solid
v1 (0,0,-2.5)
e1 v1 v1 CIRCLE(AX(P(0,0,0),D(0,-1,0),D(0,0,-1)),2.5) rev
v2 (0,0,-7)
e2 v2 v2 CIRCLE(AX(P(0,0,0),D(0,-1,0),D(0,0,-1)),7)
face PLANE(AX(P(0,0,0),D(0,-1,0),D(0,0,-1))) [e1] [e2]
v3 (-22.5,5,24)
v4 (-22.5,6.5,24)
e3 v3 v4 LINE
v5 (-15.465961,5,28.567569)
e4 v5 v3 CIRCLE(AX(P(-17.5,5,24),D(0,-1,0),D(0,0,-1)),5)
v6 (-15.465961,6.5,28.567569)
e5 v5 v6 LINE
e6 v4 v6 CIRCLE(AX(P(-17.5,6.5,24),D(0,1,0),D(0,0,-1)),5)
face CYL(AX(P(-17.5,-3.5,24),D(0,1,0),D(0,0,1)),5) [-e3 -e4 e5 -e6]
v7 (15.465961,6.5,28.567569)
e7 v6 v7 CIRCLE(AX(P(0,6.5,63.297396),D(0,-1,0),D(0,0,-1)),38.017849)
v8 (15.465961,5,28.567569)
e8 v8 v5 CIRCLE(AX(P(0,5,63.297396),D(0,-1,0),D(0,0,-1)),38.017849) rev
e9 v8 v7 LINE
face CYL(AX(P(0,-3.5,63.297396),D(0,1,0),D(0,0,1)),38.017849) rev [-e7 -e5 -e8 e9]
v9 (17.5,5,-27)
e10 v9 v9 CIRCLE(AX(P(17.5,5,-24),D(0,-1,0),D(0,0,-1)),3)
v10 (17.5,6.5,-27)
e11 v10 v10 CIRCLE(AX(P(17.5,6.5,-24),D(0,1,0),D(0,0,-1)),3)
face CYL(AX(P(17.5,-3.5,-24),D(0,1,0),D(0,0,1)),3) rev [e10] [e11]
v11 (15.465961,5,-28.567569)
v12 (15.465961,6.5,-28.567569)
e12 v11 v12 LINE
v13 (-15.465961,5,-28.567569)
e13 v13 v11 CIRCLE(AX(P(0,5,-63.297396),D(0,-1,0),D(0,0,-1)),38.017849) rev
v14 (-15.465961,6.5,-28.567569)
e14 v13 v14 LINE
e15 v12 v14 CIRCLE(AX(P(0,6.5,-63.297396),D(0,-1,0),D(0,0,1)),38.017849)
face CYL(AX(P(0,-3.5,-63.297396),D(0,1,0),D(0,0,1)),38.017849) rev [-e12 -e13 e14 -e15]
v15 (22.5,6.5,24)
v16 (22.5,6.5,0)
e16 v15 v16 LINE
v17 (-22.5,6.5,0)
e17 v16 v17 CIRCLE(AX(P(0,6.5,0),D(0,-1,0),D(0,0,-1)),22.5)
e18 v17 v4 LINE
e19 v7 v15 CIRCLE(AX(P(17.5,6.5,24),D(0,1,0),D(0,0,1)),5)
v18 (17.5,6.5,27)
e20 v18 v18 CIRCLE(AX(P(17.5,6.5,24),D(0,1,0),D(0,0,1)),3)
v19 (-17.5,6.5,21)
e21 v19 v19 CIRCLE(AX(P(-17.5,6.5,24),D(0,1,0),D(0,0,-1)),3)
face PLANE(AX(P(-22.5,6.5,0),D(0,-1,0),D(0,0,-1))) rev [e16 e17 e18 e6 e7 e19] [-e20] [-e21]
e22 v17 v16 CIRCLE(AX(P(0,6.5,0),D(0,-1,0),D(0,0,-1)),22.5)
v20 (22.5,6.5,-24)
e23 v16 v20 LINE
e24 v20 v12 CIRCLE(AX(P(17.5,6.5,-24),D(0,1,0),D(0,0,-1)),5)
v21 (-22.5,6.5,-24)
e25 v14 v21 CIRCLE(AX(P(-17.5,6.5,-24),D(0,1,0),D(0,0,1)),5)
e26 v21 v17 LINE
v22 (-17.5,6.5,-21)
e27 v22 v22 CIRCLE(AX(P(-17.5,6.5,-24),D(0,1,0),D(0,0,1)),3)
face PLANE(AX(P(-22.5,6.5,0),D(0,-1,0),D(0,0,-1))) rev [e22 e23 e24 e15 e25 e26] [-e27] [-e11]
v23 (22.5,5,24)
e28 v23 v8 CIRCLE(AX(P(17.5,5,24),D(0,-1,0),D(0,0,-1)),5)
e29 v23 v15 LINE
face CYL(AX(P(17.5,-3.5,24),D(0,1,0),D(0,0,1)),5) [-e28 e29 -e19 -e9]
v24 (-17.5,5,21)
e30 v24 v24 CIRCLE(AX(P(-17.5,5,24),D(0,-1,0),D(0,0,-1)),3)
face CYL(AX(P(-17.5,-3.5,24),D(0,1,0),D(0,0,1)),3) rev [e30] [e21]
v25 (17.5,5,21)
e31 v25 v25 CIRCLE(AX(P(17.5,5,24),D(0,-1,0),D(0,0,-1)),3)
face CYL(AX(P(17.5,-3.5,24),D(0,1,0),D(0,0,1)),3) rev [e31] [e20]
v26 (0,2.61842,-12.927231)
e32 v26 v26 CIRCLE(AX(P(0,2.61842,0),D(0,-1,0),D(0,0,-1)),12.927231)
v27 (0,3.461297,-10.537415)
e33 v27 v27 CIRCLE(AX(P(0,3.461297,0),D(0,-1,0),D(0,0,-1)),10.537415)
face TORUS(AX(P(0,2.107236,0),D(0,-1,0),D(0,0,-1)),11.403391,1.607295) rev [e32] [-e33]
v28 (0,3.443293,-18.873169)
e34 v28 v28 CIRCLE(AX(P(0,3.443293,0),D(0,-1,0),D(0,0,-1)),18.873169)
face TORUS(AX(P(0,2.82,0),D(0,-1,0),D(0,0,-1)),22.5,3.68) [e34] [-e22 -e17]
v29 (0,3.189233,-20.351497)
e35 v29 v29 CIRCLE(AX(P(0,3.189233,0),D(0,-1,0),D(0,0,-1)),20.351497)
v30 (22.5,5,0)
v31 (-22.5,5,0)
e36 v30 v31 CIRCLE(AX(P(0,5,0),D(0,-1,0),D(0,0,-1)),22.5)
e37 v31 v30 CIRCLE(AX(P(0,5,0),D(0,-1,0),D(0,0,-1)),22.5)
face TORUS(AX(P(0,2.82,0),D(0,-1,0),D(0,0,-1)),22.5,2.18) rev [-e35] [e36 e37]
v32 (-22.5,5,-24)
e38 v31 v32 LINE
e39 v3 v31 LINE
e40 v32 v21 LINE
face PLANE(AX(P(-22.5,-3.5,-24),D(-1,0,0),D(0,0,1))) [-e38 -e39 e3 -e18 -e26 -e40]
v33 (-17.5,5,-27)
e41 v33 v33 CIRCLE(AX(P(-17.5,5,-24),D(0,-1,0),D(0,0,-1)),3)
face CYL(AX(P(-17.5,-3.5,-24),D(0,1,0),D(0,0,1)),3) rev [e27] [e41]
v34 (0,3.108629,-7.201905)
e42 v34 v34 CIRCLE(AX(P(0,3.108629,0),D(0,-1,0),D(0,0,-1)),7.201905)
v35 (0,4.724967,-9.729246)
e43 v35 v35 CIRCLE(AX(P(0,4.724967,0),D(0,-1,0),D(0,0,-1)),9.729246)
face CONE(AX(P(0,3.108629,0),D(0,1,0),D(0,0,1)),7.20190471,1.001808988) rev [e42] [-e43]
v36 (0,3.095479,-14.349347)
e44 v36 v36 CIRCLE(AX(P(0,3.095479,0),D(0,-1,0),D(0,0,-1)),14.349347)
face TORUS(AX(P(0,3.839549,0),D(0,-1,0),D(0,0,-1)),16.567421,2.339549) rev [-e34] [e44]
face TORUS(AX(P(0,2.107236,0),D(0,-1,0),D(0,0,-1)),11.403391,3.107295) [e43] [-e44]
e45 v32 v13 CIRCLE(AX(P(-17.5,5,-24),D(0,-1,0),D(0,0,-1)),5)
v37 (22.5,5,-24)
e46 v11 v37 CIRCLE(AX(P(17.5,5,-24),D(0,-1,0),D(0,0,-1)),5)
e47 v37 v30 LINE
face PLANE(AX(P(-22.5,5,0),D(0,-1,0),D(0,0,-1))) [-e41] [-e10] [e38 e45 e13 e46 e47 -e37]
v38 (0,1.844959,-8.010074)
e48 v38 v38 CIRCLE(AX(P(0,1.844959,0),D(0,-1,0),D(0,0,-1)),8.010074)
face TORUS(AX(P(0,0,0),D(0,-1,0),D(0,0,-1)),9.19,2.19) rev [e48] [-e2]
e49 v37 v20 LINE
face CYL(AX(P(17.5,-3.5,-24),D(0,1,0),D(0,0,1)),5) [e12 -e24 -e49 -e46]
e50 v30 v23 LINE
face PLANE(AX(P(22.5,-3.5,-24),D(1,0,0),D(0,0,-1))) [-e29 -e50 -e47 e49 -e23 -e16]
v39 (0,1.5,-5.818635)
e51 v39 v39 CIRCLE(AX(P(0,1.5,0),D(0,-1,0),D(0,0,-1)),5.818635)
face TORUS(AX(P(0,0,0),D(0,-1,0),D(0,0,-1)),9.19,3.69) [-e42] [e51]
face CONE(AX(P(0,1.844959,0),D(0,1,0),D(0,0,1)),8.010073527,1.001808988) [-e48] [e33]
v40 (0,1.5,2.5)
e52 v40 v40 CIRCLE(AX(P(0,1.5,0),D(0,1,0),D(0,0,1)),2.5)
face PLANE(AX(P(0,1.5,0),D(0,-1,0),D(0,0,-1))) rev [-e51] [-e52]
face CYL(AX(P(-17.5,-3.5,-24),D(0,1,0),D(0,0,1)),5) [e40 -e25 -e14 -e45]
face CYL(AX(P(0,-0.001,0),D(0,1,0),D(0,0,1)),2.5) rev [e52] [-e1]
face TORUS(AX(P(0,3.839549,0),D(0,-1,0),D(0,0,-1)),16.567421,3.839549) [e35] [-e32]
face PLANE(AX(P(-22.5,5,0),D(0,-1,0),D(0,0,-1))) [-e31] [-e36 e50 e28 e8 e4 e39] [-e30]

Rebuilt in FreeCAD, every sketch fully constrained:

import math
import FreeCAD as App
import Part
import Sketcher
from FreeCAD import Vector

doc = App.newDocument("Part")
body = doc.addObject("PartDesign::Body", "Body")

# Sketch on XY plane
sketch1 = body.newObject("Sketcher::SketchObject", "Sketch")
sketch1.AttachmentSupport = (doc.getObject("XY_Plane"), [""])
sketch1.MapMode = "FlatFace"
sketch1.addGeometry([
    Part.LineSegment(Vector(-7, 0, 0), Vector(0, 0, 0)),  # 0
    Part.LineSegment(Vector(0, 0, 0), Vector(0, 1.5, 0)),  # 1
    Part.LineSegment(Vector(0, 1.5, 0), Vector(-5.8, 1.5, 0)),  # 2
    Part.ArcOfCircle(Part.Circle(Vector(-9.2, 0, 0), Vector(0, 0, 1), 3.7), math.radians(24), math.radians(57)),  # 3
    Part.LineSegment(Vector(-7.2, 3.1, 0), Vector(-9.7, 4.7, 0)),  # 4
    Part.ArcOfCircle(Part.Circle(Vector(-11.4, 2.1, 0), Vector(0, 0, 1), 3.1), math.radians(57), math.radians(161)),  # 5
    Part.ArcOfCircle(Part.Circle(Vector(-16.6, 3.8, 0), Vector(0, 0, 1), 2.3), math.radians(-170), math.radians(-19)),  # 6
    Part.ArcOfCircle(Part.Circle(Vector(-22.5, 2.8, 0), Vector(0, 0, 1), 3.7), math.radians(10), math.radians(90)),  # 7
    Part.LineSegment(Vector(-22.5, 6.5, 0), Vector(-68.5, 6.5, 0)),  # 8
    Part.LineSegment(Vector(-68.5, 6.5, 0), Vector(-68.5, 5, 0)),  # 9
    Part.LineSegment(Vector(-68.5, 5, 0), Vector(-22.5, 5, 0)),  # 10
    Part.ArcOfCircle(Part.Circle(Vector(-22.5, 2.8, 0), Vector(0, 0, 1), 2.2), math.radians(10), math.radians(90)),  # 11
    Part.ArcOfCircle(Part.Circle(Vector(-16.6, 3.8, 0), Vector(0, 0, 1), 3.8), math.radians(-170), math.radians(-19)),  # 12
    Part.ArcOfCircle(Part.Circle(Vector(-11.4, 2.1, 0), Vector(0, 0, 1), 1.6), math.radians(57), math.radians(161)),  # 13
    Part.LineSegment(Vector(-10.5, 3.5, 0), Vector(-8, 1.8, 0)),  # 14
    Part.ArcOfCircle(Part.Circle(Vector(-9.2, 0, 0), Vector(0, 0, 1), 2.2), math.radians(0), math.radians(57)),  # 15
], False)
sketch1.addConstraint([
    Sketcher.Constraint("Coincident", 0, 2, 1, 1),
    Sketcher.Constraint("Coincident", 1, 2, 2, 1),
    Sketcher.Constraint("Coincident", 2, 2, 3, 1),
    Sketcher.Constraint("Tangent", 3, 2, 4, 1),
    Sketcher.Constraint("Tangent", 4, 2, 5, 1),
    Sketcher.Constraint("Tangent", 5, 2, 6, 2),
    Sketcher.Constraint("Tangent", 6, 1, 7, 1),
    Sketcher.Constraint("Tangent", 7, 2, 8, 1),
    Sketcher.Constraint("Coincident", 8, 2, 9, 1),
    Sketcher.Constraint("Coincident", 9, 2, 10, 1),
    Sketcher.Constraint("Tangent", 10, 2, 11, 2),
    Sketcher.Constraint("Tangent", 11, 1, 12, 1),
    Sketcher.Constraint("Tangent", 12, 2, 13, 2),
    Sketcher.Constraint("Tangent", 13, 1, 14, 1),
    Sketcher.Constraint("Tangent", 14, 2, 15, 2),
    Sketcher.Constraint("Coincident", 15, 1, 0, 1),
    Sketcher.Constraint("Horizontal", 0),
    Sketcher.Constraint("Vertical", 1),
    Sketcher.Constraint("Horizontal", 2),
    Sketcher.Constraint("Horizontal", 8),
    Sketcher.Constraint("Vertical", 9),
    Sketcher.Constraint("Horizontal", 10),
    Sketcher.Constraint("Coincident", 0, 2, -1, 1),
    Sketcher.Constraint("Coincident", 11, 3, 7, 3),
    Sketcher.Constraint("Coincident", 12, 3, 6, 3),
    Sketcher.Constraint("Coincident", 13, 3, 5, 3),
    Sketcher.Constraint("Coincident", 15, 3, 3, 3),
    Sketcher.Constraint("PointOnObject", 3, 3, -1),
    Sketcher.Constraint("Parallel", 4, 14),
    Sketcher.Constraint("Equal", 1, 9),
    Sketcher.Constraint("DistanceX", 0, 1, 0, 2, 7.0),
    Sketcher.Constraint("DistanceX", 8, 2, 8, 1, 46.0),
    Sketcher.Constraint("Radius", 3, 3.69),
    Sketcher.Constraint("Radius", 7, 3.68),
    Sketcher.Constraint("Radius", 11, 2.18),
    Sketcher.Constraint("Distance", 4, 3.0),
    Sketcher.Constraint("DistanceY", -1, 1, 9, 2, 5.0),
    Sketcher.Constraint("DistanceX", 7, 3, -1, 1, 22.5),
    Sketcher.Constraint("Radius", 6, 2.339549),
    Sketcher.Constraint("Radius", 5, 3.107295),
    Sketcher.Constraint("DistanceX", 5, 2, 4, 2, 4.620101),
])
revolution = body.newObject("PartDesign::Revolution", "Revolution")
revolution.Profile = sketch1
revolution.ReferenceAxis = (sketch1, ["V_Axis"])
revolution.Angle = 360

# Sketch on XZ plane
sketch2 = body.newObject("Sketcher::SketchObject", "Sketch001")
sketch2.AttachmentSupport = (doc.getObject("XZ_Plane"), [""])
sketch2.MapMode = "FlatFace"
sketch2.AttachmentOffset = App.Placement(Vector(0, 0, -6.5), App.Rotation())
sketch2.addGeometry([
    Part.LineSegment(Vector(-88.9, -88.9, 0), Vector(-88.9, 88.9, 0)),  # 0
    Part.LineSegment(Vector(-88.9, 88.9, 0), Vector(88.9, 88.9, 0)),  # 1
    Part.LineSegment(Vector(88.9, 88.9, 0), Vector(88.9, -88.9, 0)),  # 2
    Part.LineSegment(Vector(88.9, -88.9, 0), Vector(-88.9, -88.9, 0)),  # 3
    Part.LineSegment(Vector(-22.5, 24, 0), Vector(-22.5, -24, 0)),  # 4
    Part.ArcOfCircle(Part.Circle(Vector(-17.5, -24, 0), Vector(0, 0, 1), 5), math.radians(-180), math.radians(-66)),  # 5
    Part.ArcOfCircle(Part.Circle(Vector(0, -63.3, 0), Vector(0, 0, 1), 38), math.radians(66), math.radians(114)),  # 6
    Part.ArcOfCircle(Part.Circle(Vector(17.5, -24, 0), Vector(0, 0, 1), 5), math.radians(-114), math.radians(0)),  # 7
    Part.LineSegment(Vector(22.5, -24, 0), Vector(22.5, 24, 0)),  # 8
    Part.ArcOfCircle(Part.Circle(Vector(17.5, 24, 0), Vector(0, 0, 1), 5), math.radians(0), math.radians(114)),  # 9
    Part.ArcOfCircle(Part.Circle(Vector(0, 63.3, 0), Vector(0, 0, 1), 38), math.radians(-114), math.radians(-66)),  # 10
    Part.ArcOfCircle(Part.Circle(Vector(-17.5, 24, 0), Vector(0, 0, 1), 5), math.radians(66), math.radians(180)),  # 11
    Part.Circle(Vector(-17.5, -24, 0), Vector(0, 0, 1), 3),  # 12
    Part.Circle(Vector(17.5, -24, 0), Vector(0, 0, 1), 3),  # 13
    Part.Circle(Vector(17.5, 24, 0), Vector(0, 0, 1), 3),  # 14
    Part.Circle(Vector(-17.5, 24, 0), Vector(0, 0, 1), 3),  # 15
], False)
sketch2.addConstraint([
    Sketcher.Constraint("Coincident", 0, 2, 1, 1),
    Sketcher.Constraint("Coincident", 1, 2, 2, 1),
    Sketcher.Constraint("Coincident", 2, 2, 3, 1),
    Sketcher.Constraint("Coincident", 3, 2, 0, 1),
    Sketcher.Constraint("Tangent", 4, 2, 5, 1),
    Sketcher.Constraint("Tangent", 5, 2, 6, 2),
    Sketcher.Constraint("Tangent", 6, 1, 7, 1),
    Sketcher.Constraint("Tangent", 7, 2, 8, 1),
    Sketcher.Constraint("Tangent", 8, 2, 9, 1),
    Sketcher.Constraint("Tangent", 9, 2, 10, 2),
    Sketcher.Constraint("Tangent", 10, 1, 11, 1),
    Sketcher.Constraint("Tangent", 11, 2, 4, 1),
    Sketcher.Constraint("Vertical", 0),
    Sketcher.Constraint("Horizontal", 1),
    Sketcher.Constraint("Vertical", 2),
    Sketcher.Constraint("Horizontal", 3),
    Sketcher.Constraint("Vertical", 4),
    Sketcher.Constraint("Vertical", 8),
    Sketcher.Constraint("Coincident", 12, 3, 5, 3),
    Sketcher.Constraint("Coincident", 13, 3, 7, 3),
    Sketcher.Constraint("Coincident", 14, 3, 9, 3),
    Sketcher.Constraint("Coincident", 15, 3, 11, 3),
    Sketcher.Constraint("Equal", 5, 7),
    Sketcher.Constraint("Equal", 7, 9),
    Sketcher.Constraint("Equal", 6, 10),
    Sketcher.Constraint("Equal", 9, 11),
    Sketcher.Constraint("Equal", 12, 13),
    Sketcher.Constraint("Equal", 13, 14),
    Sketcher.Constraint("Equal", 14, 15),
    Sketcher.Constraint("Symmetric", 5, 3, 9, 3, -1, 1),
    Sketcher.Constraint("Symmetric", 0, 2, 2, 2, -1, 1),
    Sketcher.Constraint("Symmetric", 6, 3, 10, 3, -1),
    Sketcher.Constraint("Equal", 3, 0),
    Sketcher.Constraint("Diameter", 12, 6.0),
    Sketcher.Constraint("Radius", 5, 5.0),
    Sketcher.Constraint("DistanceY", 4, 2, 4, 1, 48.0),
    Sketcher.Constraint("DistanceX", 5, 3, 7, 3, 35.0),
    Sketcher.Constraint("DistanceX", 1, 1, 1, 2, 177.772),
    Sketcher.Constraint("Radius", 6, 38.017849),
])
pocket1 = body.newObject("PartDesign::Pocket", "Pocket")
pocket1.Profile = sketch2
pocket1.Length = 10
pocket1.Reversed = True

# Sketch on XZ plane
sketch3 = body.newObject("Sketcher::SketchObject", "Sketch002")
sketch3.AttachmentSupport = (doc.getObject("XZ_Plane"), [""])
sketch3.MapMode = "FlatFace"
sketch3.AttachmentOffset = App.Placement(Vector(0, 0, -1.5), App.Rotation())
sketch3.addGeometry(Part.Circle(Vector(0, 0, 0), Vector(0, 0, 1), 2.5), False)
sketch3.addConstraint([
    Sketcher.Constraint("Coincident", 0, 3, -1, 1),
    Sketcher.Constraint("Diameter", 0, 5.0),
])
pocket2 = body.newObject("PartDesign::Pocket", "Pocket001")
pocket2.Profile = sketch3
pocket2.Type = "UpToFirst"
pocket2.Reversed = True

doc.recompute()
